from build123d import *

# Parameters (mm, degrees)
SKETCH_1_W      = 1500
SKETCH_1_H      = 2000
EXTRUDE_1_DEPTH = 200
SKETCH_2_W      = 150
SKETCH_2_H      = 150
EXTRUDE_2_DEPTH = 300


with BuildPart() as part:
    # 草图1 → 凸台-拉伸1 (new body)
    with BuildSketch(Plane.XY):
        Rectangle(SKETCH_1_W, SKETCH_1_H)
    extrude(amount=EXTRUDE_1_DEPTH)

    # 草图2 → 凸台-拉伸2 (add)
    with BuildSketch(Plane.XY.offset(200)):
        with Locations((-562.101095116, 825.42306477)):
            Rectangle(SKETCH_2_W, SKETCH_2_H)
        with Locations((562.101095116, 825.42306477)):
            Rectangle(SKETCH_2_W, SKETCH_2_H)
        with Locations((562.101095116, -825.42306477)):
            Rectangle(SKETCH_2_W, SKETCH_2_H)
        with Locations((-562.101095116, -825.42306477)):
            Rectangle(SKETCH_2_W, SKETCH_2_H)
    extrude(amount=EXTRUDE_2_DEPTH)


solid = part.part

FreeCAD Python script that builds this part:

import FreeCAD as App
import Part
import Sketcher
from FreeCAD import Vector


def add_polygon(sketch, points):
    """Adds a closed chain of lines whose ends are joined by coincident constraints."""
    first, n = sketch.GeometryCount, len(points)
    for a, b in zip(points, points[1:] + points[:1]):
        sketch.addGeometry(Part.LineSegment(App.Vector(*a, 0), App.Vector(*b, 0)), False)
    for i in range(n):
        sketch.addConstraint(Sketcher.Constraint("Coincident", first + i, 2, first + (i + 1) % n, 1))

doc = App.newDocument("Part")
body = doc.addObject("PartDesign::Body", "Body")

sketch1 = doc.addObject("Sketcher::SketchObject", "Sketch")
body.addObject(sketch1)
sketch1.AttachmentSupport = (doc.XY_Plane, [""])
sketch1.MapMode = "FlatFace"
add_polygon(sketch1, [(-750, 1000), (-750, -1000), (750, -1000), (750, 1000)])
sketch1.addConstraint(Sketcher.Constraint("Vertical", 0))
sketch1.addConstraint(Sketcher.Constraint("Horizontal", 1))
sketch1.addConstraint(Sketcher.Constraint("Vertical", 2))
sketch1.addConstraint(Sketcher.Constraint("Horizontal", 3))
sketch1.addConstraint(Sketcher.Constraint("Symmetric", 0, 2, 2, 2, -1, 1))
sketch1.addConstraint(Sketcher.Constraint("DistanceX", 1, 1, 1, 2, 1500.0))
sketch1.addConstraint(Sketcher.Constraint("DistanceY", 0, 2, 0, 1, 2000.0))
pad1 = doc.addObject("PartDesign::Pad", "Pad")
body.addObject(pad1)
pad1.Profile = sketch1
pad1.Length = 200

sketch2 = doc.addObject("Sketcher::SketchObject", "Sketch001")
body.addObject(sketch2)
sketch2.AttachmentSupport = (doc.XY_Plane, [""])
sketch2.MapMode = "FlatFace"
sketch2.AttachmentOffset = App.Placement(Vector(0, 0, 200), App.Rotation())
add_polygon(sketch2, [(-637, 900), (-637, 750), (-487, 750), (-487, 900)])
add_polygon(sketch2, [(487, 900), (487, 750), (637, 750), (637, 900)])
add_polygon(sketch2, [(487, -750), (487, -900), (637, -900), (637, -750)])
add_polygon(sketch2, [(-637, -750), (-637, -900), (-487, -900), (-487, -750)])
sketch2.addConstraint(Sketcher.Constraint("Vertical", 0))
sketch2.addConstraint(Sketcher.Constraint("Horizontal", 1))
sketch2.addConstraint(Sketcher.Constraint("Vertical", 2))
sketch2.addConstraint(Sketcher.Constraint("Horizontal", 3))
sketch2.addConstraint(Sketcher.Constraint("Vertical", 4))
sketch2.addConstraint(Sketcher.Constraint("Horizontal", 5))
sketch2.addConstraint(Sketcher.Constraint("Vertical", 6))
sketch2.addConstraint(Sketcher.Constraint("Horizontal", 7))
sketch2.addConstraint(Sketcher.Constraint("Vertical", 8))
sketch2.addConstraint(Sketcher.Constraint("Horizontal", 9))
sketch2.addConstraint(Sketcher.Constraint("Vertical", 10))
sketch2.addConstraint(Sketcher.Constraint("Horizontal", 11))
sketch2.addConstraint(Sketcher.Constraint("Vertical", 12))
sketch2.addConstraint(Sketcher.Constraint("Horizontal", 13))
sketch2.addConstraint(Sketcher.Constraint("Vertical", 14))
sketch2.addConstraint(Sketcher.Constraint("Horizontal", 15))
sketch2.addConstraint(Sketcher.Constraint("Symmetric", 2, 2, 8, 2, -1, 1))
sketch2.addConstraint(Sketcher.Constraint("Symmetric", 0, 2, 10, 2, -1, 1))
sketch2.addConstraint(Sketcher.Constraint("Symmetric", 6, 2, 12, 2, -1, 1))
sketch2.addConstraint(Sketcher.Constraint("Symmetric", 4, 2, 14, 2, -1, 1))
sketch2.addConstraint(Sketcher.Constraint("Symmetric", 1, 2, 4, 2, -2))
sketch2.addConstraint(Sketcher.Constraint("Symmetric", 3, 2, 6, 2, -2))
sketch2.addConstraint(Sketcher.Constraint("Equal", 15, 0))
sketch2.addConstraint(Sketcher.Constraint("DistanceX", 1, 1, 1, 2, 150.0))
sketch2.addConstraint(Sketcher.Constraint("DistanceX", 1, 2, 4, 2, 974.20219))
sketch2.addConstraint(Sketcher.Constraint("DistanceY", 8, 2, 4, 2, 1650.84613))
pad2 = doc.addObject("PartDesign::Pad", "Pad001")
body.addObject(pad2)
pad2.Profile = sketch2
pad2.Length = 300

doc.recompute()
